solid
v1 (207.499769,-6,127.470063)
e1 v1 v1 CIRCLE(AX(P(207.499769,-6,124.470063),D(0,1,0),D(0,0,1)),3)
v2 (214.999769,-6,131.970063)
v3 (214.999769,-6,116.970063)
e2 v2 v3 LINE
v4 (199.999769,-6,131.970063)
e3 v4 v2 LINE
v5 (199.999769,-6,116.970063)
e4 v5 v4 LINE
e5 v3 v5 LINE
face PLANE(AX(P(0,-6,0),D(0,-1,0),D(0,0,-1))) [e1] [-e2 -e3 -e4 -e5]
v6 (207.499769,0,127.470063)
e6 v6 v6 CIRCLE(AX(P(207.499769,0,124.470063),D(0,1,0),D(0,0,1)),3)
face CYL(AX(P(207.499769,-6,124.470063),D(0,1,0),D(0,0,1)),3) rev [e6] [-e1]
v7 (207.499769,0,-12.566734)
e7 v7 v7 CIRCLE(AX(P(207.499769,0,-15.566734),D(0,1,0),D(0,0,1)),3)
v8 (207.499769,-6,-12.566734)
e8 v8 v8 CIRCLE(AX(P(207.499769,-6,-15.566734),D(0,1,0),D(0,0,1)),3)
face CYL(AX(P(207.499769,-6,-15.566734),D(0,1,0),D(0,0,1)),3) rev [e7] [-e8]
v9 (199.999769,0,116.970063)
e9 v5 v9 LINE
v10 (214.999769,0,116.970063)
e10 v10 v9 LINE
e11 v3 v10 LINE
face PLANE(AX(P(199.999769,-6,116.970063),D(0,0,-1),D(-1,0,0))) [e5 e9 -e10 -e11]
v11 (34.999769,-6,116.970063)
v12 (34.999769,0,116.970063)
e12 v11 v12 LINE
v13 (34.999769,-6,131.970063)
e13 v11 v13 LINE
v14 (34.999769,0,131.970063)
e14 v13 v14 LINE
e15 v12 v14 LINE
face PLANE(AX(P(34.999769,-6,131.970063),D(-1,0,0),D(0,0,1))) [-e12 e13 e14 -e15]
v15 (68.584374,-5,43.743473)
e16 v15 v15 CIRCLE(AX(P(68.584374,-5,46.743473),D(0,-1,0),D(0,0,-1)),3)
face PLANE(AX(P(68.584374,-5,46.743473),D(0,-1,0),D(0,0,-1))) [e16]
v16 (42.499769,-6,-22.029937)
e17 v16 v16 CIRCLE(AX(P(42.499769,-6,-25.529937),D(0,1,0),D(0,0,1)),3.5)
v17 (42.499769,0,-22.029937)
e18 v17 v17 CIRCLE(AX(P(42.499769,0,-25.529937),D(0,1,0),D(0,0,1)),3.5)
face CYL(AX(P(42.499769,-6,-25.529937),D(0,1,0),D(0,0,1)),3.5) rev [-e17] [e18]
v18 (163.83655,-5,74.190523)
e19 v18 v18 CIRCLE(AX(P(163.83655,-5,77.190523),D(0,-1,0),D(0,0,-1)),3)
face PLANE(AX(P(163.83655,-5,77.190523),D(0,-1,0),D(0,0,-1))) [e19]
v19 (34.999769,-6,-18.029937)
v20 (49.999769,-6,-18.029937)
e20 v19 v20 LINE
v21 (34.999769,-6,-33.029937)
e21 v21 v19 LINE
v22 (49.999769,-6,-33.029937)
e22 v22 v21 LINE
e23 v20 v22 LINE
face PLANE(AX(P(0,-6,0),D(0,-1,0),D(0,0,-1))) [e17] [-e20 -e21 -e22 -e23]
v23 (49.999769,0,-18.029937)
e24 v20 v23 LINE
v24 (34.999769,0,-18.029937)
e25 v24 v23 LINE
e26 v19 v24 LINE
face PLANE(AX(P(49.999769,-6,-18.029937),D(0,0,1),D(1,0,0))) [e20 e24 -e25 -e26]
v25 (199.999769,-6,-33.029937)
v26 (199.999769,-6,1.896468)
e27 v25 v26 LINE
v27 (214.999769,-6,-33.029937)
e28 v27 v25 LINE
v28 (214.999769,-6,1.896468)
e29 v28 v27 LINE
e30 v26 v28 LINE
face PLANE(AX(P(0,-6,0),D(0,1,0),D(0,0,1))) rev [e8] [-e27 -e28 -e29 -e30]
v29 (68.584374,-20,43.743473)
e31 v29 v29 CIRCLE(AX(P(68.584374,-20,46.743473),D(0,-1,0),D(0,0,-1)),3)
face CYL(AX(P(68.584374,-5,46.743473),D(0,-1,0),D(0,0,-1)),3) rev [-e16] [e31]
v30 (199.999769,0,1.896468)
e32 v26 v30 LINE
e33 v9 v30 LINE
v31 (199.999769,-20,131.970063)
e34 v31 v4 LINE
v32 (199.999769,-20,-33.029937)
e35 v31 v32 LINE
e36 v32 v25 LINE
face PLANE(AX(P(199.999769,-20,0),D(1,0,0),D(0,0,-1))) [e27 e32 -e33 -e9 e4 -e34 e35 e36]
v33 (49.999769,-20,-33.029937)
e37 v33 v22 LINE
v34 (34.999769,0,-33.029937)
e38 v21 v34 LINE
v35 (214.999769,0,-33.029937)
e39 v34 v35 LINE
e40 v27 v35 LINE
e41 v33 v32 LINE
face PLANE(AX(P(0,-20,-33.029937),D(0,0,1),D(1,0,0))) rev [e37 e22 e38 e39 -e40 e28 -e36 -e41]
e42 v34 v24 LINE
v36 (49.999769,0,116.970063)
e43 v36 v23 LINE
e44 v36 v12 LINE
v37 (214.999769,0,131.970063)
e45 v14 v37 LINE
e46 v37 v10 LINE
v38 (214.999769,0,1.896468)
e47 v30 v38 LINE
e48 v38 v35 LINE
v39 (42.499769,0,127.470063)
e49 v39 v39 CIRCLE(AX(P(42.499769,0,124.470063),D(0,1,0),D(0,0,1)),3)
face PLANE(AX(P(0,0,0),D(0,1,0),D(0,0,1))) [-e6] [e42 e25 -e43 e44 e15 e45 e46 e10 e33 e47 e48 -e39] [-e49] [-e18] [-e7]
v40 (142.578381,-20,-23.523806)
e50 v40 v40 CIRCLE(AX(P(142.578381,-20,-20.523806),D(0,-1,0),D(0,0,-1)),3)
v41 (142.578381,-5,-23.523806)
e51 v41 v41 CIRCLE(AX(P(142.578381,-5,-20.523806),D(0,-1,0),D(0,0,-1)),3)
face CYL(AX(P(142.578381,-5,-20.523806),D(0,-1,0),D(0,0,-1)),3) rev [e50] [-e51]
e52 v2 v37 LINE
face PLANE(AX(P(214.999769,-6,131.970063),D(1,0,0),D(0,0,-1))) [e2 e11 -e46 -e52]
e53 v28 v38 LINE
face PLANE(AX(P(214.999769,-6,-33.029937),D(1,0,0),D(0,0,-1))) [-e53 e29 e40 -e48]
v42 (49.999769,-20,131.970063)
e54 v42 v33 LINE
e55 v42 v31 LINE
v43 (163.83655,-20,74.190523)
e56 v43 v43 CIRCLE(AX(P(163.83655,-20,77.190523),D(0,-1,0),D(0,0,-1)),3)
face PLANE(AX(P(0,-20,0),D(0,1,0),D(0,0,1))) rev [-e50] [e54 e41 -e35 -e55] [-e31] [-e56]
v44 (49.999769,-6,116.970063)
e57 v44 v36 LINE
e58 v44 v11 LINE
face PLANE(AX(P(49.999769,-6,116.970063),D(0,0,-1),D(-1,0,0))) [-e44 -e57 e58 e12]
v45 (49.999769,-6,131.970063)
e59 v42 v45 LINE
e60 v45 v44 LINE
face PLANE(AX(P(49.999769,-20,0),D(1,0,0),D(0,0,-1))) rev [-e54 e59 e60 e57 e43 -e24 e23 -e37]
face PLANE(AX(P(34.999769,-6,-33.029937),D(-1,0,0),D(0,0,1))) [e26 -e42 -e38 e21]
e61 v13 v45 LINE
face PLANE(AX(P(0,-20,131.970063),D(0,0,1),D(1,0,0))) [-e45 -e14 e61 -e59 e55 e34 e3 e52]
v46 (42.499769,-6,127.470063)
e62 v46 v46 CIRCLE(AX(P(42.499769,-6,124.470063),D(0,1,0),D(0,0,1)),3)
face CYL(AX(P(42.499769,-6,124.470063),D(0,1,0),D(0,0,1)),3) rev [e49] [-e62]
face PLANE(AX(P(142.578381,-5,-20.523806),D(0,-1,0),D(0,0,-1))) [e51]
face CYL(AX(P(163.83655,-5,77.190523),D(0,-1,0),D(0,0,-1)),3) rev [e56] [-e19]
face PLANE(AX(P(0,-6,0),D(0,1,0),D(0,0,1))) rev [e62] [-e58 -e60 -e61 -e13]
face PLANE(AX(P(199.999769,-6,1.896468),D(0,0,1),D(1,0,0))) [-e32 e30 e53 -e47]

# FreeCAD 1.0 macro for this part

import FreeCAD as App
import Part
import Sketcher

V = App.Vector

doc = App.newDocument("Part")
body = doc.addObject("PartDesign::Body", "Body")

# Sketch on XZ plane
sketch1 = body.newObject("Sketcher::SketchObject", "Sketch")
sketch1.AttachmentSupport = (doc.getObject("XZ_Plane"), [""])
sketch1.MapMode = "FlatFace"
sketch1.addGeometry([
    Part.LineSegment(V(50, -33, 0), V(50, 132, 0)),
    Part.LineSegment(V(50, 132, 0), V(200, 132, 0)),
    Part.LineSegment(V(200, 132, 0), V(200, -33, 0)),
    Part.LineSegment(V(200, -33, 0), V(50, -33, 0)),
], False)
sketch1.addConstraint([
    Sketcher.Constraint("Coincident", 0, 2, 1, 1),
    Sketcher.Constraint("Coincident", 1, 2, 2, 1),
    Sketcher.Constraint("Coincident", 2, 2, 3, 1),
    Sketcher.Constraint("Coincident", 3, 2, 0, 1),
    Sketcher.Constraint("Vertical", 0),
    Sketcher.Constraint("Horizontal", 1),
    Sketcher.Constraint("Vertical", 2),
    Sketcher.Constraint("Horizontal", 3),
    Sketcher.Constraint("DistanceX", 1, 1, 1, 2, 150.0),
    Sketcher.Constraint("DistanceY", 0, 1, 0, 2, 165.0),
    Sketcher.Constraint("DistanceX", -1, 1, 0, 2, 49.999769),
    Sketcher.Constraint("DistanceY", -1, 1, 0, 2, 131.970063),
])
pad1 = body.newObject("PartDesign::Pad", "Pad")
pad1.Profile = sketch1
pad1.Length = 20

# Sketch on XZ plane
sketch2 = body.newObject("Sketcher::SketchObject", "Sketch001")
sketch2.AttachmentSupport = (doc.getObject("XZ_Plane"), [""])
sketch2.MapMode = "FlatFace"
sketch2.addGeometry([
    Part.LineSegment(V(35, -33, 0), V(35, -18, 0)),  # 0
    Part.LineSegment(V(35, -18, 0), V(50, -18, 0)),  # 1
    Part.LineSegment(V(50, -18, 0), V(50, -33, 0)),  # 2
    Part.LineSegment(V(50, -33, 0), V(35, -33, 0)),  # 3
    Part.Circle(V(42.5, -25.5, 0), V(0, 0, 1), 3.5),  # 4
    Part.LineSegment(V(200, -33, 0), V(200, 1.9, 0)),  # 5
    Part.LineSegment(V(200, 1.9, 0), V(215, 1.9, 0)),  # 6
    Part.LineSegment(V(215, 1.9, 0), V(215, -33, 0)),  # 7
    Part.LineSegment(V(215, -33, 0), V(200, -33, 0)),  # 8
    Part.Circle(V(207.5, -15.6, 0), V(0, 0, 1), 3),  # 9
    Part.LineSegment(V(200, 117, 0), V(200, 132, 0)),  # 10
    Part.LineSegment(V(200, 132, 0), V(215, 132, 0)),  # 11
    Part.LineSegment(V(215, 132, 0), V(215, 117, 0)),  # 12
    Part.LineSegment(V(215, 117, 0), V(200, 117, 0)),  # 13
    Part.Circle(V(207.5, 124.5, 0), V(0, 0, 1), 3),  # 14
    Part.LineSegment(V(35, 117, 0), V(35, 132, 0)),  # 15
    Part.LineSegment(V(35, 132, 0), V(50, 132, 0)),  # 16
    Part.LineSegment(V(50, 132, 0), V(50, 117, 0)),  # 17
    Part.LineSegment(V(50, 117, 0), V(35, 117, 0)),  # 18
    Part.Circle(V(42.5, 124.5, 0), V(0, 0, 1), 3),  # 19
], False)
sketch2.addConstraint([
    Sketcher.Constraint("Coincident", 0, 2, 1, 1),
    Sketcher.Constraint("Coincident", 1, 2, 2, 1),
    Sketcher.Constraint("Coincident", 2, 2, 3, 1),
    Sketcher.Constraint("Coincident", 3, 2, 0, 1),
    Sketcher.Constraint("Coincident", 5, 2, 6, 1),
    Sketcher.Constraint("Coincident", 6, 2, 7, 1),
    Sketcher.Constraint("Coincident", 7, 2, 8, 1),
    Sketcher.Constraint("Coincident", 8, 2, 5, 1),
    Sketcher.Constraint("Coincident", 10, 2, 11, 1),
    Sketcher.Constraint("Coincident", 11, 2, 12, 1),
    Sketcher.Constraint("Coincident", 12, 2, 13, 1),
    Sketcher.Constraint("Coincident", 13, 2, 10, 1),
    Sketcher.Constraint("Coincident", 15, 2, 16, 1),
    Sketcher.Constraint("Coincident", 16, 2, 17, 1),
    Sketcher.Constraint("Coincident", 17, 2, 18, 1),
    Sketcher.Constraint("Coincident", 18, 2, 15, 1),
    Sketcher.Constraint("Vertical", 0),
    Sketcher.Constraint("Horizontal", 1),
    Sketcher.Constraint("Vertical", 2),
    Sketcher.Constraint("Horizontal", 3),
    Sketcher.Constraint("Vertical", 5),
    Sketcher.Constraint("Horizontal", 6),
    Sketcher.Constraint("Vertical", 7),
    Sketcher.Constraint("Horizontal", 8),
    Sketcher.Constraint("Vertical", 10),
    Sketcher.Constraint("Horizontal", 11),
    Sketcher.Constraint("Vertical", 12),
    Sketcher.Constraint("Horizontal", 13),
    Sketcher.Constraint("Vertical", 15),
    Sketcher.Constraint("Horizontal", 16),
    Sketcher.Constraint("Vertical", 17),
    Sketcher.Constraint("Horizontal", 18),
    Sketcher.Constraint("Equal", 9, 14),
    Sketcher.Constraint("Equal", 14, 19),
    Sketcher.Constraint("Horizontal", 14, 3, 19, 3),
    Sketcher.Constraint("Horizontal", 3, 2, 7, 2),
    Sketcher.Constraint("Horizontal", 11, 2, 15, 2),
    Sketcher.Constraint("Horizontal", 13, 2, 17, 2),
    Sketcher.Constraint("Vertical", 9, 3, 14, 3),
    Sketcher.Constraint("Vertical", 4, 3, 19, 3),
    Sketcher.Constraint("Vertical", 8, 2, 10, 2),
    Sketcher.Constraint("Vertical", 7, 2, 11, 2),
    Sketcher.Constraint("Vertical", 3, 2, 15, 2),
    Sketcher.Constraint("Vertical", 2, 2, 16, 2),
    Sketcher.Constraint("Equal", 3, 6),
    Sketcher.Constraint("Equal", 18, 0),
    Sketcher.Constraint("Equal", 2, 10),
    Sketcher.Constraint("Diameter", 4, 7.0),
    Sketcher.Constraint("Diameter", 9, 6.0),
    Sketcher.Constraint("DistanceX", 1, 1, 1, 2, 15.0),
    Sketcher.Constraint("DistanceX", 4, 3, 9, 3, 165.0),
    Sketcher.Constraint("DistanceY", 4, 3, 14, 3, 150.0),
    Sketcher.Constraint("DistanceX", 1, 2, 5, 2, 150.0),
    Sketcher.Constraint("DistanceY", 0, 2, 15, 2, 150.0),
    Sketcher.Constraint("DistanceX", 0, 2, 4, 3, 7.5),
    Sketcher.Constraint("DistanceY", 4, 3, 0, 2, 7.5),
    Sketcher.Constraint("DistanceY", 5, 1, 5, 2, 34.926405),
    Sketcher.Constraint("DistanceX", -1, 1, 4, 3, 42.499769),
    Sketcher.Constraint("DistanceY", 4, 3, -1, 1, 25.529937),
    Sketcher.Constraint("DistanceY", 9, 3, -1, 1, 15.566734),
])
pad2 = body.newObject("PartDesign::Pad", "Pad001")
pad2.Profile = sketch2
pad2.Length = 6

# Sketch on XZ plane
sketch3 = body.newObject("Sketcher::SketchObject", "Sketch002")
sketch3.AttachmentSupport = (doc.getObject("XZ_Plane"), [""])
sketch3.MapMode = "FlatFace"
sketch3.AttachmentOffset = App.Placement(V(0, 0, 20), App.Rotation())
sketch3.addGeometry([
    Part.Circle(V(163.8, 77.2, 0), V(0, 0, 1), 3),
    Part.Circle(V(142.6, -20.5, 0), V(0, 0, 1), 3),
    Part.Circle(V(68.6, 46.7, 0), V(0, 0, 1), 3),
], False)
sketch3.addConstraint([
    Sketcher.Constraint("Equal", 0, 1),
    Sketcher.Constraint("Equal", 1, 2),
    Sketcher.Constraint("Diameter", 0, 6.0),
    Sketcher.Constraint("DistanceX", -1, 1, 0, 3, 163.83655),
    Sketcher.Constraint("DistanceX", -1, 1, 1, 3, 142.578381),
    Sketcher.Constraint("DistanceY", 1, 3, 0, 3, 97.71433),
    Sketcher.Constraint("DistanceY", 1, 3, 2, 3, 67.267279),
    Sketcher.Constraint("DistanceY", -1, 1, 0, 3, 77.190523),
    Sketcher.Constraint("DistanceX", -1, 1, 2, 3, 68.584374),
])
pocket1 = body.newObject("PartDesign::Pocket", "Pocket")
pocket1.Profile = sketch3
pocket1.Length = 15

doc.recompute()
